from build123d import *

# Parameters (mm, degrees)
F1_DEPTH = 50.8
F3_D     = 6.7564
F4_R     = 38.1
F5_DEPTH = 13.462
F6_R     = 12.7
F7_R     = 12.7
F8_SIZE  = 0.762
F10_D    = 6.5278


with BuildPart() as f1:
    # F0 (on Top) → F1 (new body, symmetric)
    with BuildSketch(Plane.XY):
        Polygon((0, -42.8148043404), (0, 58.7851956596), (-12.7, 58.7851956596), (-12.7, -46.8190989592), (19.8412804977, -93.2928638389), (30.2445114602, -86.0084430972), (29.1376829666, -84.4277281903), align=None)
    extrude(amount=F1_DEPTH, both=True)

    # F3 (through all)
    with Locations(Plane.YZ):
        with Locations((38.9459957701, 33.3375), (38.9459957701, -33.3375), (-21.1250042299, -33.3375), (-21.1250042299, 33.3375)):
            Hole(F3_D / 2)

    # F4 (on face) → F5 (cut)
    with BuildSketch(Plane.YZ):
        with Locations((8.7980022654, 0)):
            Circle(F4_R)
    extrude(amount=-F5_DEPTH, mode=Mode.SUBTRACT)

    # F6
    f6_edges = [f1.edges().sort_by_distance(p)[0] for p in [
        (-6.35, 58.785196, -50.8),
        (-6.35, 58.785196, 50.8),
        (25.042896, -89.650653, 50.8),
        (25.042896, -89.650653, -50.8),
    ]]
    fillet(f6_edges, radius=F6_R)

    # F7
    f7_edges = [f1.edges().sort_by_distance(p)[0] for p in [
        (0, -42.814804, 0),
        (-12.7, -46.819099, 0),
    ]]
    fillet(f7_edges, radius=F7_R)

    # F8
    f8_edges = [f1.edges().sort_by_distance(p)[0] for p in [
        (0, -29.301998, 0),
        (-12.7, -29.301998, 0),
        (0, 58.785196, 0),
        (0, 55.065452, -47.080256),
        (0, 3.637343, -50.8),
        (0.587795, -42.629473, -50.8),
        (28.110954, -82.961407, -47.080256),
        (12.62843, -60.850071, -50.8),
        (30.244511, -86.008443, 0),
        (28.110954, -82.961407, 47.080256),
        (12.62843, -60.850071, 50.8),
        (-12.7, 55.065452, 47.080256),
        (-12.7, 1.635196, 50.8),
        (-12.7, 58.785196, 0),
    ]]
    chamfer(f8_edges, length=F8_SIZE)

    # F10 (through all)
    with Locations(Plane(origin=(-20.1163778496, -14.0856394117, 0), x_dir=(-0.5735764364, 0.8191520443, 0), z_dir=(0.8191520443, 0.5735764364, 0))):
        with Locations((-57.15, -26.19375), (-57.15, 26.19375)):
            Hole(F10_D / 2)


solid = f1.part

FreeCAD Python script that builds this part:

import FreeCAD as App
import Part
import Sketcher
Q = App.Units.Quantity


def edges_at(feature, points):
    """Names of the edges that pass closest to the given points."""
    edges = feature.Shape.Edges
    near = lambda p: min(range(len(edges)), key=lambda i: edges[i].distToShape(Part.Vertex(*p))[0])
    return sorted({f"Edge{near(p) + 1}" for p in points})


def add_polygon(sketch, points):
    """Adds a closed chain of lines whose ends are joined by coincident constraints."""
    first, n = sketch.GeometryCount, len(points)
    for a, b in zip(points, points[1:] + points[:1]):
        sketch.addGeometry(Part.LineSegment(App.Vector(*a, 0), App.Vector(*b, 0)), False)
    for i in range(n):
        sketch.addConstraint(Sketcher.Constraint("Coincident", first + i, 2, first + (i + 1) % n, 1))

doc = App.newDocument("Part")
body = doc.addObject("PartDesign::Body", "Body")

# Sketch on XY plane
sketch1 = body.newObject("Sketcher::SketchObject", "Sketch")
sketch1.AttachmentSupport = (doc.getObject("XY_Plane"), [""])
sketch1.MapMode = "FlatFace"
add_polygon(sketch1, [(0, -42.8), (0, 58.8), (-12.7, 58.8), (-12.7, -46.8), (19.8, -93.3), (30.2, -86), (29.1, -84.4)])  # lines 0-6
sketch1.addConstraint(Sketcher.Constraint("Vertical", 0))
sketch1.addConstraint(Sketcher.Constraint("Horizontal", 1))
sketch1.addConstraint(Sketcher.Constraint("Vertical", 2))
sketch1.addConstraint(Sketcher.Constraint("PointOnObject", 0, 2, -2))
sketch1.addConstraint(Sketcher.Constraint("Perpendicular", 3, 4))
sketch1.addConstraint(Sketcher.Constraint("Perpendicular", 4, 5))
sketch1.addConstraint(Sketcher.Constraint("Parallel", 5, 6))
sketch1.addConstraint(Sketcher.Constraint("DistanceY", 0, 1, 0, 2, Q("4 in")))
sketch1.addConstraint(Sketcher.Constraint("Distance", 6, Q("2 in")))
sketch1.addConstraint(Sketcher.Constraint("DistanceX", 1, 2, 1, 1, Q("0.5 in")))
sketch1.addConstraint(Sketcher.Constraint("Angle", 3, Q("-55 deg")))
sketch1.addConstraint(Sketcher.Constraint("Distance", 4, Q("0.5 in")))
sketch1.addConstraint(Sketcher.Constraint("DistanceX", 3, 2, 5, 2, Q("0.3660001 in")))
sketch1.addConstraint(Sketcher.Constraint("DistanceY", 2, 2, -1, 1, 46.819099))
pad1 = body.newObject("PartDesign::Pad", "Pad")
pad1.Profile = sketch1
pad1.Length = Q("4 in")
pad1.Midplane = True

# Sketch on YZ plane
sketch2 = body.newObject("Sketcher::SketchObject", "Sketch001")
sketch2.AttachmentSupport = (doc.getObject("YZ_Plane"), [""])
sketch2.MapMode = "FlatFace"
sketch2.addGeometry(Part.Circle(App.Vector(38.9, 33.3, 0), App.Vector(0, 0, 1), 3.4), False)
sketch2.addGeometry(Part.Circle(App.Vector(38.9, -33.3, 0), App.Vector(0, 0, 1), 3.4), False)
sketch2.addGeometry(Part.Circle(App.Vector(-21.1, -33.3, 0), App.Vector(0, 0, 1), 3.4), False)
sketch2.addGeometry(Part.Circle(App.Vector(-21.1, 33.3, 0), App.Vector(0, 0, 1), 3.4), False)
sketch2.addConstraint(Sketcher.Constraint("Equal", 0, 1))
sketch2.addConstraint(Sketcher.Constraint("Equal", 1, 2))
sketch2.addConstraint(Sketcher.Constraint("Equal", 2, 3))
sketch2.addConstraint(Sketcher.Constraint("Symmetric", 0, 3, 1, 3, -1))
sketch2.addConstraint(Sketcher.Constraint("Symmetric", 2, 3, 3, 3, -1))
sketch2.addConstraint(Sketcher.Constraint("Horizontal", 1, 3, 2, 3))
sketch2.addConstraint(Sketcher.Constraint("Diameter", 0, Q("0.266 in")))
sketch2.addConstraint(Sketcher.Constraint("DistanceY", -1, 1, 0, 3, Q("1.3125 in")))
sketch2.addConstraint(Sketcher.Constraint("DistanceX", 2, 3, 1, 3, Q("2.365 in")))
sketch2.addConstraint(Sketcher.Constraint("DistanceX", -1, 1, 0, 3, 38.945996))
doc.recompute()
hole = body.newObject("PartDesign::Hole", "Hole")
hole.Profile = sketch2
hole.ThreadType = "None"
hole.Diameter = Q("0.266 in")
hole.DepthType = "ThroughAll"

# Sketch on YZ plane
sketch3 = body.newObject("Sketcher::SketchObject", "Sketch002")
sketch3.AttachmentSupport = (doc.getObject("YZ_Plane"), [""])
sketch3.MapMode = "FlatFace"
sketch3.addGeometry(Part.Circle(App.Vector(9, 0, 0), App.Vector(0, 0, 1), 38), False)
sketch3.addConstraint(Sketcher.Constraint("PointOnObject", 0, 3, -1))
sketch3.addConstraint(Sketcher.Constraint("Diameter", 0, Q("3 in")))
sketch3.addConstraint(Sketcher.Constraint("DistanceX", -1, 1, 0, 3, 8.798002))
pocket1 = body.newObject("PartDesign::Pocket", "Pocket")
pocket1.Profile = sketch3
pocket1.Length = Q("0.53 in")
doc.recompute()

fillet = body.newObject("PartDesign::Fillet", "Fillet")
fillet.Base = (pocket1, edges_at(pocket1, [
    (-6.35, 58.785, -50.8),
    (-6.35, 58.785, 50.8),
    (25.043, -89.651, 50.8),
    (25.043, -89.651, -50.8),
]))
fillet.Radius = Q("0.5 in")
doc.recompute()

fillet2 = body.newObject("PartDesign::Fillet", "Fillet001")
fillet2.Base = (fillet, edges_at(fillet, [(0, -42.815, 0), (-12.7, -46.819, 0)]))
fillet2.Radius = Q("0.5 in")
doc.recompute()

chamfer = body.newObject("PartDesign::Chamfer", "Chamfer")
chamfer.Base = (fillet2, edges_at(fillet2, [
    (0, -29.302, 0),
    (-12.7, -29.302, 0),
    (0, 58.785, 0),
    (0, 55.065, -47.08),
    (0, 3.637, -50.8),
    (0.588, -42.629, -50.8),
    (26.492, -80.649, -49.208),
    (12.628, -60.85, -50.8),
    (30.245, -86.008, 0),
    (26.492, -80.649, 49.208),
    (12.628, -60.85, 50.8),
    (-12.7, 55.065, 47.08),
    (-12.7, 1.635, 50.8),
    (-12.7, 58.785, 0),
]))
chamfer.Size = Q("0.03 in")

# Sketch on an angled plane
sketch4 = body.newObject("Sketcher::SketchObject", "Sketch003")
sketch4.Placement = App.Placement(App.Vector(-20.116378, -14.085639, 0), App.Rotation(App.Vector(-0.573576436, 0.819152044, 0), App.Vector(0, 0, 0.999999999), App.Vector(0.819152044, 0.573576436, 0), "ZXY"))
sketch4.addGeometry(Part.Circle(App.Vector(-57.1, -26.2, 0), App.Vector(0, 0, 1), 3.3), False)
sketch4.addGeometry(Part.Circle(App.Vector(-57.1, 26.2, 0), App.Vector(0, 0, 1), 3.3), False)
sketch4.addConstraint(Sketcher.Constraint("Equal", 0, 1))
sketch4.addConstraint(Sketcher.Constraint("Symmetric", 0, 3, 1, 3, -1))
sketch4.addConstraint(Sketcher.Constraint("Diameter", 0, Q("0.257 in")))
sketch4.addConstraint(Sketcher.Constraint("DistanceX", 0, 3, -1, 1, Q("2.25 in")))
sketch4.addConstraint(Sketcher.Constraint("DistanceY", 0, 3, -1, 1, Q("1.03125 in")))
doc.recompute()
hole2 = body.newObject("PartDesign::Hole", "Hole001")
hole2.Profile = sketch4
hole2.ThreadType = "None"
hole2.Diameter = Q("0.257 in")
hole2.DepthType = "ThroughAll"

doc.recompute()
